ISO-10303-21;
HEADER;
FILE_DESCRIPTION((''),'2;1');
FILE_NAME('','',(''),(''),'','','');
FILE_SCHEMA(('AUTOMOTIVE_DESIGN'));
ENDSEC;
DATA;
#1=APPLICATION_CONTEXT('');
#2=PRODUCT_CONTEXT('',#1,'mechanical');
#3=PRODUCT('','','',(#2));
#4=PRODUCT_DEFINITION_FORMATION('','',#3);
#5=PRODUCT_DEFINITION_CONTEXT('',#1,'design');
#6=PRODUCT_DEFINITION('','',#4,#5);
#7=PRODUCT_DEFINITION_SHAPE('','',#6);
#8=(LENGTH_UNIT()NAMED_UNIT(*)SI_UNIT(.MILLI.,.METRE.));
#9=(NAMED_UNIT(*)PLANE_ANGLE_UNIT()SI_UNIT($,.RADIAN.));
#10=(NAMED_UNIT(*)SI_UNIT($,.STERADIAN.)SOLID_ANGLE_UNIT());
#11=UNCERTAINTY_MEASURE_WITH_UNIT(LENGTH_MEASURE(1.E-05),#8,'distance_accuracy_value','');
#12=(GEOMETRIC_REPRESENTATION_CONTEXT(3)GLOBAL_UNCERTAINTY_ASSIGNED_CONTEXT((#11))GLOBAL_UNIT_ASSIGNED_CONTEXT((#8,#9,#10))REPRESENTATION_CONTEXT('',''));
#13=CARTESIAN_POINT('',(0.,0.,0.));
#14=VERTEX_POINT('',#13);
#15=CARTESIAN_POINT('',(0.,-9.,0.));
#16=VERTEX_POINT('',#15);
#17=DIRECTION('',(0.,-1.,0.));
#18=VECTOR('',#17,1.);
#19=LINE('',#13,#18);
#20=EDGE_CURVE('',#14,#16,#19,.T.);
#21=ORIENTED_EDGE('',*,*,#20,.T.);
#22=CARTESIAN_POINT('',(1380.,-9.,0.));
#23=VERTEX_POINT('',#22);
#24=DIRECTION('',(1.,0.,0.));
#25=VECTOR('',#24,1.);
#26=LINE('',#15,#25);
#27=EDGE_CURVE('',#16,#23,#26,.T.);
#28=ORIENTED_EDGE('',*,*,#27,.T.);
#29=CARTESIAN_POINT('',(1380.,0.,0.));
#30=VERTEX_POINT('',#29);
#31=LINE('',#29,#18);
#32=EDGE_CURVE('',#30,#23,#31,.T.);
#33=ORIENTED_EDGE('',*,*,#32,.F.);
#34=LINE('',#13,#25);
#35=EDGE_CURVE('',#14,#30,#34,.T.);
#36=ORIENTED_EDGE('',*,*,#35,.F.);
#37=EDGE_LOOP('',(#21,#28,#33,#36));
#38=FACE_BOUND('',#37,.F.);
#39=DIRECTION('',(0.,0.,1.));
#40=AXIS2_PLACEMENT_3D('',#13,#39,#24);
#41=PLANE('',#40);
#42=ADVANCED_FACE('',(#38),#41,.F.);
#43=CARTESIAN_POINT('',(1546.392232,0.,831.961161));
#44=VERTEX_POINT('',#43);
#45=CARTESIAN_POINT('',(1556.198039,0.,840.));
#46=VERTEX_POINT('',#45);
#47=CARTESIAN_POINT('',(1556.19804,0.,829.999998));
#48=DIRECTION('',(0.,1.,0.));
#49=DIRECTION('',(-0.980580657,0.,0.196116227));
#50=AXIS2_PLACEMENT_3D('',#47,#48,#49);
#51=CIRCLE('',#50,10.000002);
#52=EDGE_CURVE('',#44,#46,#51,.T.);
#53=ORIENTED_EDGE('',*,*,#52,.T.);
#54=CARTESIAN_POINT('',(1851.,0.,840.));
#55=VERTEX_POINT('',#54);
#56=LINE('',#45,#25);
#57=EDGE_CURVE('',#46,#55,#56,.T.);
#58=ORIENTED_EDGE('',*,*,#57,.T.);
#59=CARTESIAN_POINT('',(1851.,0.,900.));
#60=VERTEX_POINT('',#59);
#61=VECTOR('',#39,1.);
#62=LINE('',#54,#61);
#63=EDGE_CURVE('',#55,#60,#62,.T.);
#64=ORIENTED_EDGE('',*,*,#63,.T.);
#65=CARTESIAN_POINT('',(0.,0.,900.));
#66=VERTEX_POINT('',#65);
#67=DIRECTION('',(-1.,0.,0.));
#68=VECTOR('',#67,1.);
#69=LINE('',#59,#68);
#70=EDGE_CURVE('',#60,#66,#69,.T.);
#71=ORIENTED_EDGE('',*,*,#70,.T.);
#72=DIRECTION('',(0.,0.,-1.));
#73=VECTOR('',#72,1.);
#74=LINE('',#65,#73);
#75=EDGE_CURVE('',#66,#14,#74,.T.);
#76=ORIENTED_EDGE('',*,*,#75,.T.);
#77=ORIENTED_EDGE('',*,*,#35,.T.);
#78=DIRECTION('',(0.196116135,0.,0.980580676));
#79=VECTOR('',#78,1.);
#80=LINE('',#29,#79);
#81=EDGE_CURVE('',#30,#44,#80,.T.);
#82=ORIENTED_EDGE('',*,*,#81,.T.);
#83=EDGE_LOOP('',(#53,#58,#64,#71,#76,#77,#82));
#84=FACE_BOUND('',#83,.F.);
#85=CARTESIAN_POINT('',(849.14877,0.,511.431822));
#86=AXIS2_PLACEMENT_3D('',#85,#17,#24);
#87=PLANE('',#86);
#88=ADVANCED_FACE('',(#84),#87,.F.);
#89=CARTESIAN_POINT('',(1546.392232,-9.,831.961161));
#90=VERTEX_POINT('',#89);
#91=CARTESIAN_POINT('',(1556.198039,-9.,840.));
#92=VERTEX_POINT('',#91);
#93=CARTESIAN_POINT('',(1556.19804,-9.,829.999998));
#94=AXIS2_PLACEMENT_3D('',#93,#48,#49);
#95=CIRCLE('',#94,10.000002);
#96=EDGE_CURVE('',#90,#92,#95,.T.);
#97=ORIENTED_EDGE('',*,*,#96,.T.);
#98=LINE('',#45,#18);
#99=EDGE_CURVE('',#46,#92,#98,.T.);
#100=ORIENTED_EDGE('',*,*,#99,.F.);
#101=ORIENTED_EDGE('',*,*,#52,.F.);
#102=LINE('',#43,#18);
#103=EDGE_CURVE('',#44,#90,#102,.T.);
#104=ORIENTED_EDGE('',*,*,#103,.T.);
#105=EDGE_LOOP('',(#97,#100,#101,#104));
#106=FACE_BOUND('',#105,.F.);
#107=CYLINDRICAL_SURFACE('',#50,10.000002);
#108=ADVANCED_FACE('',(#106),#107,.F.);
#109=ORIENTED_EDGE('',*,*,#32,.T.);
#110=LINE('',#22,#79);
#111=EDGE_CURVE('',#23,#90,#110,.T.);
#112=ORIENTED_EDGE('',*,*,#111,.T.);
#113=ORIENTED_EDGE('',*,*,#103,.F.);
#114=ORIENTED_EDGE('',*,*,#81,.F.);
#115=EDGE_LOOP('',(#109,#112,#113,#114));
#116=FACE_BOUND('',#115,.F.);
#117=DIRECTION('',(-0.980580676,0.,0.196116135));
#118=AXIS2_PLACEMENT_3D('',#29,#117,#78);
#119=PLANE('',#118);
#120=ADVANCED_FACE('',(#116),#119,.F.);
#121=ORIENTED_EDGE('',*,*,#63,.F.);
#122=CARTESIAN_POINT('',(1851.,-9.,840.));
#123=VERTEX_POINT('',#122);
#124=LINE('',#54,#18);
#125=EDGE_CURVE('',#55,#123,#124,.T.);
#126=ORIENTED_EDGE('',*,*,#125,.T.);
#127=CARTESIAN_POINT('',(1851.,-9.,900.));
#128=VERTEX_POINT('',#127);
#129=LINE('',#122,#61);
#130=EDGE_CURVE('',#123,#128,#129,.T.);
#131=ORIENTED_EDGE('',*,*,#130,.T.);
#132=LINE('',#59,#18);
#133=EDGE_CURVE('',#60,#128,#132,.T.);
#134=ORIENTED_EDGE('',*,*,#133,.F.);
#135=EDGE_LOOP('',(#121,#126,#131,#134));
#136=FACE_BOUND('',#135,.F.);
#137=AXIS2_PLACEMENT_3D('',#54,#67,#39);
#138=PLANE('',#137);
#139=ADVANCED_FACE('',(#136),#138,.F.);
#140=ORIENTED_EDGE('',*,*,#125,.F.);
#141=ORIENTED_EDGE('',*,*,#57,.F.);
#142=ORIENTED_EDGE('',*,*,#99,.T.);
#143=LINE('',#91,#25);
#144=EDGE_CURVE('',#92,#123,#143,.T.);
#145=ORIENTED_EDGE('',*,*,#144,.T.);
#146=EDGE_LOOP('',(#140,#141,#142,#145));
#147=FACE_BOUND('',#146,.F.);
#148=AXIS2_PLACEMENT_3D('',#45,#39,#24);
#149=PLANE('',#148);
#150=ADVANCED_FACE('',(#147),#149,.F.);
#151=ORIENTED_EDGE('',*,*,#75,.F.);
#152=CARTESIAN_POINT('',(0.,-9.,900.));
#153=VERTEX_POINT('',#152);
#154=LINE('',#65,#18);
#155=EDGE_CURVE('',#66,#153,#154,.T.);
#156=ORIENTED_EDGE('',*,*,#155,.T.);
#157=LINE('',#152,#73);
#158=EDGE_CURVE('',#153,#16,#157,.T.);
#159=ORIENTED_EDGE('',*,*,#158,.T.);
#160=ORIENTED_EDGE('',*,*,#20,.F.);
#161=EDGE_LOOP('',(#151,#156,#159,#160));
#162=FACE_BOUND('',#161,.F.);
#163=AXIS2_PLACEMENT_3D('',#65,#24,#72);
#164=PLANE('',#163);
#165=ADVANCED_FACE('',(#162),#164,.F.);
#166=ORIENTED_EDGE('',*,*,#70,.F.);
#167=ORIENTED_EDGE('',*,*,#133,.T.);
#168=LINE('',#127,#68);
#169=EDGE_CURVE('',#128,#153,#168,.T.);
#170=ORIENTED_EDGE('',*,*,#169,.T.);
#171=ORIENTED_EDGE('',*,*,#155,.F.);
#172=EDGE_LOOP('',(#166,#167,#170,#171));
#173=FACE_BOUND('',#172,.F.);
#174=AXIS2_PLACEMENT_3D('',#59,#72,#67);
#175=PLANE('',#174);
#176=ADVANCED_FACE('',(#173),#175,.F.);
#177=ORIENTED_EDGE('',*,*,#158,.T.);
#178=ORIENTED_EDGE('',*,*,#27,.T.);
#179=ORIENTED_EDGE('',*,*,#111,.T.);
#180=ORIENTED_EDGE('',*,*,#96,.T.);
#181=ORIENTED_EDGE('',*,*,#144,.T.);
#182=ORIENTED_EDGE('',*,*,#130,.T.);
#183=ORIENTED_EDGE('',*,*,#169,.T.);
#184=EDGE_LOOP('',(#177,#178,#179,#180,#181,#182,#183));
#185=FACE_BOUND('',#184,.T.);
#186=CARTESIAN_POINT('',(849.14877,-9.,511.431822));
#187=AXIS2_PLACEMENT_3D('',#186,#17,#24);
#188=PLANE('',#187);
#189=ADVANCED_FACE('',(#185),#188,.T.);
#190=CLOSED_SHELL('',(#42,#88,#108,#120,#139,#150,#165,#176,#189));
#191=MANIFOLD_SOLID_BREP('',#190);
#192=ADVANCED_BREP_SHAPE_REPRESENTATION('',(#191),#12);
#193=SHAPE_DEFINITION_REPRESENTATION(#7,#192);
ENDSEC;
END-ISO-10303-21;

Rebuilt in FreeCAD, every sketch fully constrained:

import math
import FreeCAD as App
import Part
import Sketcher
Q = App.Units.Quantity

doc = App.newDocument("Part")
body = doc.addObject("PartDesign::Body", "Body")

# Sketch on XZ plane
sketch1 = body.newObject("Sketcher::SketchObject", "Sketch")
sketch1.AttachmentSupport = (doc.getObject("XZ_Plane"), [""])
sketch1.MapMode = "FlatFace"
sketch1.addGeometry(Part.LineSegment(App.Vector(1851, 900, 0), App.Vector(0, 900, 0)), False)
sketch1.addGeometry(Part.LineSegment(App.Vector(0, 900, 0), App.Vector(0, 0, 0)), False)
sketch1.addGeometry(Part.LineSegment(App.Vector(0, 0, 0), App.Vector(1380, 0, 0)), False)
sketch1.addGeometry(Part.LineSegment(App.Vector(1380, 0, 0), App.Vector(1546, 832, 0)), False)
sketch1.addGeometry(Part.ArcOfCircle(Part.Circle(App.Vector(1556, 830, 0), App.Vector(0, 0, 1), 10), math.radians(90), math.radians(169)), False)
sketch1.addGeometry(Part.LineSegment(App.Vector(1556, 840, 0), App.Vector(1851, 840, 0)), False)
sketch1.addGeometry(Part.LineSegment(App.Vector(1851, 840, 0), App.Vector(1851, 900, 0)), False)
sketch1.addConstraint(Sketcher.Constraint("Coincident", 0, 2, 1, 1))
sketch1.addConstraint(Sketcher.Constraint("Coincident", 1, 2, 2, 1))
sketch1.addConstraint(Sketcher.Constraint("Coincident", 2, 2, 3, 1))
sketch1.addConstraint(Sketcher.Constraint("Tangent", 3, 2, 4, 2))
sketch1.addConstraint(Sketcher.Constraint("Tangent", 4, 1, 5, 1))
sketch1.addConstraint(Sketcher.Constraint("Coincident", 5, 2, 6, 1))
sketch1.addConstraint(Sketcher.Constraint("Coincident", 6, 2, 0, 1))
sketch1.addConstraint(Sketcher.Constraint("Horizontal", 0))
sketch1.addConstraint(Sketcher.Constraint("Vertical", 1))
sketch1.addConstraint(Sketcher.Constraint("Horizontal", 2))
sketch1.addConstraint(Sketcher.Constraint("Horizontal", 5))
sketch1.addConstraint(Sketcher.Constraint("Vertical", 6))
sketch1.addConstraint(Sketcher.Constraint("Coincident", 1, 2, -1, 1))
sketch1.addConstraint(Sketcher.Constraint("Radius", 4, Q("10.000002 mm")))
sketch1.addConstraint(Sketcher.Constraint("DistanceX", 0, 2, 0, 1, Q("1851 mm")))
sketch1.addConstraint(Sketcher.Constraint("DistanceX", 2, 1, 2, 2, Q("1380 mm")))
sketch1.addConstraint(Sketcher.Constraint("DistanceY", 1, 2, 1, 1, Q("900 mm")))
sketch1.addConstraint(Sketcher.Constraint("DistanceY", 6, 1, 6, 2, Q("60 mm")))
sketch1.addConstraint(Sketcher.Constraint("DistanceX", 5, 1, 5, 2, Q("294.801961 mm")))
pad1 = body.newObject("PartDesign::Pad", "Pad")
pad1.Profile = sketch1
pad1.Length = 9

doc.recompute()
